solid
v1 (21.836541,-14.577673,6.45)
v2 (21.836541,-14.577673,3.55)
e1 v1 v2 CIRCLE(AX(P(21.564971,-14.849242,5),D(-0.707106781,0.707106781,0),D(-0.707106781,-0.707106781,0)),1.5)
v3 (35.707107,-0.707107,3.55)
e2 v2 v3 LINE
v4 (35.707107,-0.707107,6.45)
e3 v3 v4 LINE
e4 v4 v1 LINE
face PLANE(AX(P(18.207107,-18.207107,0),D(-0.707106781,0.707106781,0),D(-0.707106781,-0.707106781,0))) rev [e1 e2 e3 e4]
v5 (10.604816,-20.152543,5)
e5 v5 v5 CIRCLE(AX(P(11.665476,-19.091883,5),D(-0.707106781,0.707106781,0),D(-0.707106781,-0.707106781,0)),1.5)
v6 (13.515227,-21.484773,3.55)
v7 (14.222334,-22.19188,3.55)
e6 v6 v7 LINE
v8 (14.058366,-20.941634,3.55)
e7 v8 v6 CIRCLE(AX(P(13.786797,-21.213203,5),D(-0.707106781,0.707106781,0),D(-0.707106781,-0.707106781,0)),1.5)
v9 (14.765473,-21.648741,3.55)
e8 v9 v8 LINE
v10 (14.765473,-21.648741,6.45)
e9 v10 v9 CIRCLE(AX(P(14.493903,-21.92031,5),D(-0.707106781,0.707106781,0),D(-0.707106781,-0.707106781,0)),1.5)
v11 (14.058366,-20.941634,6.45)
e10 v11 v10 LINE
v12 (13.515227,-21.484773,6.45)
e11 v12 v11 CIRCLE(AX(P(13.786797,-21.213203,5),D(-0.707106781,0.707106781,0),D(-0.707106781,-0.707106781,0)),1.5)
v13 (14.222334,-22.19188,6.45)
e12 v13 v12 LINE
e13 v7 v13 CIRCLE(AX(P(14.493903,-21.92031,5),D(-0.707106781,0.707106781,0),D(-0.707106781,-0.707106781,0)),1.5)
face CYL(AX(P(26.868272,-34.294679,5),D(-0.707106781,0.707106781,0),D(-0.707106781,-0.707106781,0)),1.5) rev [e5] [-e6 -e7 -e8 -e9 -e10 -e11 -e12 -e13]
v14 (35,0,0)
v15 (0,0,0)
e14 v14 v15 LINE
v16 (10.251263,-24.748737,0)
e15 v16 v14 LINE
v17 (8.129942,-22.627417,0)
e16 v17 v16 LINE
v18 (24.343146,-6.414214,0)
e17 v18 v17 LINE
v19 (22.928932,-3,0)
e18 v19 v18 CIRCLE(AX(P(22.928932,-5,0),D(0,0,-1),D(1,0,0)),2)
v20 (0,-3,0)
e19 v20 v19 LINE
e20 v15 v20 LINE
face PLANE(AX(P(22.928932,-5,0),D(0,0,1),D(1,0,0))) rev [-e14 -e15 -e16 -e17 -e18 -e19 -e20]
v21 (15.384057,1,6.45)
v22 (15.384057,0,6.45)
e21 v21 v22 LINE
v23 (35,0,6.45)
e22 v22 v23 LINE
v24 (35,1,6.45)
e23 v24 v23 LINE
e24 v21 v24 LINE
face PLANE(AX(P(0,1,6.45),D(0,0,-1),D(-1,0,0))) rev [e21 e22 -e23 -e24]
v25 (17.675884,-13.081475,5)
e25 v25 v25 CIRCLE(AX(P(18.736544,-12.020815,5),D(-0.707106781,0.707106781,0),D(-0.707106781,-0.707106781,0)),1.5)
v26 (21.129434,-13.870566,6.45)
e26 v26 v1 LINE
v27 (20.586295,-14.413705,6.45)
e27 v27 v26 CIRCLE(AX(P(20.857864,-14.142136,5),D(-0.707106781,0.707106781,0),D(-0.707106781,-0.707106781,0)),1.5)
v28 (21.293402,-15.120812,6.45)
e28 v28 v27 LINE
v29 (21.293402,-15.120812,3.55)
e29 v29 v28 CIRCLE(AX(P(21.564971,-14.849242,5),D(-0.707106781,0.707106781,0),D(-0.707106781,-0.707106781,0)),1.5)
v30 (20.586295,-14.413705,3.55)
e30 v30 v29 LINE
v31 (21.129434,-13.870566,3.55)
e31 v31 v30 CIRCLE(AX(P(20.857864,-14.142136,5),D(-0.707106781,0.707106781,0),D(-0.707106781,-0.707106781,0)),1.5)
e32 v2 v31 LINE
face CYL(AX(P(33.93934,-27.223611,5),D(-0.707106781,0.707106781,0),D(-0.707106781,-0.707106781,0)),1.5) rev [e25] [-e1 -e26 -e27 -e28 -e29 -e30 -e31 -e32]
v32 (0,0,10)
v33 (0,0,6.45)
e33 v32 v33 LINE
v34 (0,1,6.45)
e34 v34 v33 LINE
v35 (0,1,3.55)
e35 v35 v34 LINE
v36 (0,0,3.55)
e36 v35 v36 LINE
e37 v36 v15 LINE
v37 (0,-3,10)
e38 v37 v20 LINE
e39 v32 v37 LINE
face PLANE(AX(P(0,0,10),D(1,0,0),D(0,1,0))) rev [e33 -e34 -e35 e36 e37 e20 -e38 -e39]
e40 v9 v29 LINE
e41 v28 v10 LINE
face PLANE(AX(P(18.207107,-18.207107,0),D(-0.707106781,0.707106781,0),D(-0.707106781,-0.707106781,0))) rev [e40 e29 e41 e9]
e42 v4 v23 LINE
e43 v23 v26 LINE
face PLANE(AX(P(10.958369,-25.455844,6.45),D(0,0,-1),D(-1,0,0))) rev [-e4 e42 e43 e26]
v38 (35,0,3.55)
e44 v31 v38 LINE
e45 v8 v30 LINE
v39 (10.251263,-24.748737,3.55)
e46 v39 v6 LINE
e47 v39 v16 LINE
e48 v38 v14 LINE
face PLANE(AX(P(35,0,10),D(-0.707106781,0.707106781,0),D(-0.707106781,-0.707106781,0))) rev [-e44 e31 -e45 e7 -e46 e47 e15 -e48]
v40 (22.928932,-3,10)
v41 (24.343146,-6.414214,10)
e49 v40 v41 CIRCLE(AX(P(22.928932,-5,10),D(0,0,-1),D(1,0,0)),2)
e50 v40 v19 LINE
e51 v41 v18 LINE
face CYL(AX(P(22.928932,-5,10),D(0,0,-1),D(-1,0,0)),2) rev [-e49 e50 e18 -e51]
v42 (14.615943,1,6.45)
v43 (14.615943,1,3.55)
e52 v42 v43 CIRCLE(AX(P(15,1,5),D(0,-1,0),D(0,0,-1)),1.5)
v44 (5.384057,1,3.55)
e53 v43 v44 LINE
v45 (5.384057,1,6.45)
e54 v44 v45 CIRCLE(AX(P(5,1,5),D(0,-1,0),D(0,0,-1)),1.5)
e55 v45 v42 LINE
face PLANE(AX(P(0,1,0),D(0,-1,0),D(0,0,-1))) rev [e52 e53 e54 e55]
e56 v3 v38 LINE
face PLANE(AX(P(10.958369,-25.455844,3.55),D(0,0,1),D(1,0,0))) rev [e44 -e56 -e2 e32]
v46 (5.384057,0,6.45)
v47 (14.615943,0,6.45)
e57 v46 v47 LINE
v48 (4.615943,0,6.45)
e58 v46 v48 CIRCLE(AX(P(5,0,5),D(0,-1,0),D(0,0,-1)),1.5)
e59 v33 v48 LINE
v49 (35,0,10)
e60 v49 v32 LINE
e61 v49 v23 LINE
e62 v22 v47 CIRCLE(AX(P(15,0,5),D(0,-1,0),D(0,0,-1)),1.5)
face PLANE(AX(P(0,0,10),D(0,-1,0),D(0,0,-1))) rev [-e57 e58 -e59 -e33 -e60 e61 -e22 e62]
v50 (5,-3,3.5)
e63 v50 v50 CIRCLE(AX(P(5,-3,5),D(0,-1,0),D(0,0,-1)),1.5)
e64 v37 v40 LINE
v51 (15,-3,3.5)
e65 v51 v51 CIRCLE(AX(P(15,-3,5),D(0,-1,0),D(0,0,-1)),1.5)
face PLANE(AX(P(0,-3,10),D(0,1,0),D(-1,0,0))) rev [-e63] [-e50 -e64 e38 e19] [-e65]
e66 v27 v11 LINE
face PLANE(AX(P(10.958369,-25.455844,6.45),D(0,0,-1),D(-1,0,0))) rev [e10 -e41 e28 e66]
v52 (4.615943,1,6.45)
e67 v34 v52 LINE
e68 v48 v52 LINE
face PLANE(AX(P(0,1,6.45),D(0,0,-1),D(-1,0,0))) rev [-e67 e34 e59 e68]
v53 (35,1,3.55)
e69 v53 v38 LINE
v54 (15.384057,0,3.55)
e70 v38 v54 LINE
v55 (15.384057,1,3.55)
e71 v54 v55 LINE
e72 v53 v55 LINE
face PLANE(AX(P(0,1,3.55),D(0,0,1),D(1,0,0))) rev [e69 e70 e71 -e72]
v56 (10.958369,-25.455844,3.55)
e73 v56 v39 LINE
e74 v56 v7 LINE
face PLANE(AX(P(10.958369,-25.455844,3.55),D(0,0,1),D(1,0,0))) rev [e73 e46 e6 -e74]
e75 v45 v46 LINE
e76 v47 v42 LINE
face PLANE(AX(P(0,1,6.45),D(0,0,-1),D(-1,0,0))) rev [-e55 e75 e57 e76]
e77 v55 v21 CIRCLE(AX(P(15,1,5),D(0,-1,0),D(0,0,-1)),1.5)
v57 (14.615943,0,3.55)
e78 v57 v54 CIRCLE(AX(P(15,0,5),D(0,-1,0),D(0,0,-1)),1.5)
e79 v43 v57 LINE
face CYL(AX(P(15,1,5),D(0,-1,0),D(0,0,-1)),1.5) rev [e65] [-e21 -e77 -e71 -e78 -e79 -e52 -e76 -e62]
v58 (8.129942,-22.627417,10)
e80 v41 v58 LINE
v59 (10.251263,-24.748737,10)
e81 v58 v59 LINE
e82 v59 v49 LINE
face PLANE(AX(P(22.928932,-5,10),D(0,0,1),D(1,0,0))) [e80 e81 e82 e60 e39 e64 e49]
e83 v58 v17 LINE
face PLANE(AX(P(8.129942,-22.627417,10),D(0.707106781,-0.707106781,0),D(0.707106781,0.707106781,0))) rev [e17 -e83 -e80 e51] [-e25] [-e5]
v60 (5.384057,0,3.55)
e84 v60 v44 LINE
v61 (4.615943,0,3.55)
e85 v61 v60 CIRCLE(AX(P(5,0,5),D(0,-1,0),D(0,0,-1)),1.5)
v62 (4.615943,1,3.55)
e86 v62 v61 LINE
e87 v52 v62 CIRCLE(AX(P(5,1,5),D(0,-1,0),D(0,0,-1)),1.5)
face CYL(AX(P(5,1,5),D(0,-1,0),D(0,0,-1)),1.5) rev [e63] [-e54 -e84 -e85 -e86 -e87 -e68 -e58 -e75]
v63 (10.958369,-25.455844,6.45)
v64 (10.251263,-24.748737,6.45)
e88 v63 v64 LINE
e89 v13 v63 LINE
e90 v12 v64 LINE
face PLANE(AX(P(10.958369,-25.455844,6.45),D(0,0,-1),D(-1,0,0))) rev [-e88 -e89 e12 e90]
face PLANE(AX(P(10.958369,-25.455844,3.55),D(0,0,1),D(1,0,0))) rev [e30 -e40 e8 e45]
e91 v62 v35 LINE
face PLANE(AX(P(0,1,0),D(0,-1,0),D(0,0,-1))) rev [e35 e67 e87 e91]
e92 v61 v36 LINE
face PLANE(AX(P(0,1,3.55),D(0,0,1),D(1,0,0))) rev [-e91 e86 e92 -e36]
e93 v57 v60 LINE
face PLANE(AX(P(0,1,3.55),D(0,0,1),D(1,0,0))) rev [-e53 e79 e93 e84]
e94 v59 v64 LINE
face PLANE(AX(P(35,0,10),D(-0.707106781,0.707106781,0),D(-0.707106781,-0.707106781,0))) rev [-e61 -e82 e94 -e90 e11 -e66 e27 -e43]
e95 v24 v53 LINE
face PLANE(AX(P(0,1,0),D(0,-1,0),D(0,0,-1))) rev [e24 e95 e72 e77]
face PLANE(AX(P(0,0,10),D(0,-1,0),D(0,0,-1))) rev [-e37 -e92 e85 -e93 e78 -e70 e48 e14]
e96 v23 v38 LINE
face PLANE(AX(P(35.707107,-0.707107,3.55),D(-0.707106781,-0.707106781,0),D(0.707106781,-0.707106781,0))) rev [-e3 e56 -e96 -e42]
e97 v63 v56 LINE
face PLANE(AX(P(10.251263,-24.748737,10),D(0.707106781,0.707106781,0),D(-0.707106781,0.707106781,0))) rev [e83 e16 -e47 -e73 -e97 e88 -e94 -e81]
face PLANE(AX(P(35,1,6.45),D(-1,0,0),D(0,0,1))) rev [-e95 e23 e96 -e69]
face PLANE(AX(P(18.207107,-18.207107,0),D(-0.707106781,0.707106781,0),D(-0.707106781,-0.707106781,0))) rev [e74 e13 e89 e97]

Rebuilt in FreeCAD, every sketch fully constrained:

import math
import FreeCAD as App
import Part
import Sketcher

V = App.Vector
Q = App.Units.Quantity

doc = App.newDocument("Part")
params = doc.addObject("Spreadsheet::Sheet", "Params")
for row, (alias, value) in enumerate([
    ("sketch1_radius", "2 mm"),
    ("sketch1_width", "35 mm"),
    ("sketch1_height", "3 mm"),
    ("sketch1_length", "3 mm"),
    ("sketch1_length2", "35 mm"),
    ("pad1_length", "10 mm"),
    ("sketch2_width", "35 mm"),
    ("sketch2_height", "2.9 mm"),
    ("pad2_length", "1 mm"),
    ("sketch3_width", "35 mm"),
    ("sketch3_height", "2.9 mm"),
    ("pad3_length", "1 mm"),
    ("sketch4_diameter", "3 mm"),
    ("sketch5_diameter", "3 mm"),
], start=1):
    params.set(f"A{row}", alias)
    params.set(f"B{row}", "=" + value)
    params.setAlias(f"B{row}", alias)

body = doc.addObject("PartDesign::Body", "Body")

sketch1 = body.newObject("Sketcher::SketchObject", "Sketch")
sketch1.AttachmentSupport = (doc.getObject("XY_Plane"), [""])
sketch1.MapMode = "FlatFace"
sketch1.addGeometry([
    Part.LineSegment(V(35, 0, 0), V(0, 0, 0)),
    Part.LineSegment(V(0, 0, 0), V(0, -3, 0)),
    Part.LineSegment(V(0, -3, 0), V(22.9, -3, 0)),
    Part.ArcOfCircle(Part.Circle(V(22.9, -5, 0), V(0, 0, 1), 2), math.radians(-45), math.radians(90)),
    Part.LineSegment(V(24.3, -6.4, 0), V(8.1, -22.6, 0)),
    Part.LineSegment(V(8.1, -22.6, 0), V(10.3, -24.7, 0)),
    Part.LineSegment(V(10.3, -24.7, 0), V(35, 0, 0)),
], False)
sketch1.addConstraint([
    Sketcher.Constraint("Coincident", 0, 2, 1, 1),
    Sketcher.Constraint("Coincident", 1, 2, 2, 1),
    Sketcher.Constraint("Tangent", 2, 2, 3, 2),
    Sketcher.Constraint("Tangent", 3, 1, 4, 1),
    Sketcher.Constraint("Coincident", 4, 2, 5, 1),
    Sketcher.Constraint("Coincident", 5, 2, 6, 1),
    Sketcher.Constraint("Coincident", 6, 2, 0, 1),
    Sketcher.Constraint("Horizontal", 0),
    Sketcher.Constraint("Vertical", 1),
    Sketcher.Constraint("Horizontal", 2),
    Sketcher.Constraint("Coincident", 0, 2, -1, 1),
    Sketcher.Constraint("Perpendicular", 4, 5),
    Sketcher.Constraint("Perpendicular", 5, 6),
    Sketcher.Constraint("Radius", 3, Q("2 mm")),
    Sketcher.Constraint("DistanceX", 0, 2, 0, 1, Q("35 mm")),
    Sketcher.Constraint("DistanceY", 1, 2, 1, 1, Q("3 mm")),
    Sketcher.Constraint("Angle", 4, Q("-135 deg")),
    Sketcher.Constraint("Distance", 5, Q("3 mm")),
    Sketcher.Constraint("Distance", 6, Q("35 mm")),
])
sketch1.setExpression("Constraints[13]", "Params.sketch1_radius")
sketch1.setExpression("Constraints[14]", "Params.sketch1_width")
sketch1.setExpression("Constraints[15]", "Params.sketch1_height")
sketch1.setExpression("Constraints[17]", "Params.sketch1_length")
sketch1.setExpression("Constraints[18]", "Params.sketch1_length2")
pad1 = body.newObject("PartDesign::Pad", "Pad")
pad1.Profile = sketch1
pad1.setExpression("Length", "Params.pad1_length")

sketch2 = body.newObject("Sketcher::SketchObject", "Sketch001")
sketch2.AttachmentSupport = (doc.getObject("XZ_Plane"), [""])
sketch2.MapMode = "FlatFace"
sketch2.addGeometry([
    Part.LineSegment(V(0, 3.5, 0), V(0, 6.5, 0)),
    Part.LineSegment(V(0, 6.5, 0), V(35, 6.5, 0)),
    Part.LineSegment(V(35, 6.5, 0), V(35, 3.5, 0)),
    Part.LineSegment(V(35, 3.5, 0), V(0, 3.5, 0)),
], False)
sketch2.addConstraint([
    Sketcher.Constraint("Coincident", 0, 2, 1, 1),
    Sketcher.Constraint("Coincident", 1, 2, 2, 1),
    Sketcher.Constraint("Coincident", 2, 2, 3, 1),
    Sketcher.Constraint("Coincident", 3, 2, 0, 1),
    Sketcher.Constraint("Vertical", 0),
    Sketcher.Constraint("Horizontal", 1),
    Sketcher.Constraint("Vertical", 2),
    Sketcher.Constraint("Horizontal", 3),
    Sketcher.Constraint("PointOnObject", 0, 2, -2),
    Sketcher.Constraint("DistanceX", 1, 1, 1, 2, Q("35 mm")),
    Sketcher.Constraint("DistanceY", 0, 1, 0, 2, Q("2.9 mm")),
    Sketcher.Constraint("DistanceY", -1, 1, 0, 2, Q("6.45 mm")),
])
sketch2.setExpression("Constraints[9]", "Params.sketch2_width")
sketch2.setExpression("Constraints[10]", "Params.sketch2_height")
pad2 = body.newObject("PartDesign::Pad", "Pad001")
pad2.Profile = sketch2
pad2.setExpression("Length", "Params.pad2_length")
pad2.Reversed = True

sketch3 = body.newObject("Sketcher::SketchObject", "Sketch002")
sketch3.Placement = App.Placement(V(17.5, -17.5, 0), App.Rotation(V(0.707106781, 0.707106781, 0), V(0, 0, 0.999999999), V(0.707106781, -0.707106781, 0), "ZXY"))
sketch3.addGeometry([
    Part.LineSegment(V(-10.3, 6.4, 0), V(-10.3, 3.5, 0)),
    Part.LineSegment(V(-10.3, 3.5, 0), V(24.7, 3.5, 0)),
    Part.LineSegment(V(24.7, 3.5, 0), V(24.7, 6.4, 0)),
    Part.LineSegment(V(24.7, 6.4, 0), V(-10.3, 6.4, 0)),
], False)
sketch3.addConstraint([
    Sketcher.Constraint("Coincident", 0, 2, 1, 1),
    Sketcher.Constraint("Coincident", 1, 2, 2, 1),
    Sketcher.Constraint("Coincident", 2, 2, 3, 1),
    Sketcher.Constraint("Coincident", 3, 2, 0, 1),
    Sketcher.Constraint("Vertical", 0),
    Sketcher.Constraint("Horizontal", 1),
    Sketcher.Constraint("Vertical", 2),
    Sketcher.Constraint("Horizontal", 3),
    Sketcher.Constraint("DistanceX", 1, 1, 1, 2, Q("35 mm")),
    Sketcher.Constraint("DistanceY", 0, 2, 0, 1, Q("2.9 mm")),
    Sketcher.Constraint("DistanceY", -1, 1, 0, 2, Q("3.55 mm")),
    Sketcher.Constraint("DistanceX", 0, 2, -1, 1, Q("10.251263 mm")),
])
sketch3.setExpression("Constraints[8]", "Params.sketch3_width")
sketch3.setExpression("Constraints[9]", "Params.sketch3_height")
pad3 = body.newObject("PartDesign::Pad", "Pad002")
pad3.Profile = sketch3
pad3.setExpression("Length", "Params.pad3_length")

sketch4 = body.newObject("Sketcher::SketchObject", "Sketch003")
sketch4.AttachmentSupport = (doc.getObject("XZ_Plane"), [""])
sketch4.MapMode = "FlatFace"
sketch4.AttachmentOffset = App.Placement(V(0, 0, 3), App.Rotation())
sketch4.addGeometry([
    Part.Circle(V(5, 5, 0), V(0, 0, 1), 1.5),
    Part.Circle(V(15, 5, 0), V(0, 0, 1), 1.5),
], False)
sketch4.addConstraint([
    Sketcher.Constraint("Equal", 0, 1),
    Sketcher.Constraint("Horizontal", 0, 3, 1, 3),
    Sketcher.Constraint("Diameter", 0, Q("3 mm")),
    Sketcher.Constraint("DistanceX", -1, 1, 0, 3, Q("5 mm")),
    Sketcher.Constraint("DistanceY", -1, 1, 0, 3, Q("5 mm")),
    Sketcher.Constraint("DistanceX", -1, 1, 1, 3, Q("15 mm")),
])
sketch4.setExpression("Constraints[2]", "Params.sketch4_diameter")
pocket1 = body.newObject("PartDesign::Pocket", "Pocket")
pocket1.Profile = sketch4
pocket1.Type = "ThroughAll"

sketch5 = body.newObject("Sketcher::SketchObject", "Sketch004")
sketch5.Placement = App.Placement(V(15.37868, -15.37868, 0), App.Rotation(V(0.707106781, 0.707106781, 0), V(0, 0, -0.999999999), V(-0.707106781, 0.707106781, 0), "ZXY"))
sketch5.addGeometry([
    Part.Circle(V(-5.3, -5, 0), V(0, 0, 1), 1.5),
    Part.Circle(V(4.7, -5, 0), V(0, 0, 1), 1.5),
], False)
sketch5.addConstraint([
    Sketcher.Constraint("Equal", 0, 1),
    Sketcher.Constraint("Horizontal", 0, 3, 1, 3),
    Sketcher.Constraint("Diameter", 0, Q("3 mm")),
    Sketcher.Constraint("DistanceY", 0, 3, -1, 1, Q("5 mm")),
    Sketcher.Constraint("DistanceX", 0, 3, 1, 3, Q("10 mm")),
    Sketcher.Constraint("DistanceX", 0, 3, -1, 1, Q("5.251263 mm")),
])
sketch5.setExpression("Constraints[2]", "Params.sketch5_diameter")
pocket2 = body.newObject("PartDesign::Pocket", "Pocket001")
pocket2.Profile = sketch5
pocket2.Type = "ThroughAll"

doc.recompute()
